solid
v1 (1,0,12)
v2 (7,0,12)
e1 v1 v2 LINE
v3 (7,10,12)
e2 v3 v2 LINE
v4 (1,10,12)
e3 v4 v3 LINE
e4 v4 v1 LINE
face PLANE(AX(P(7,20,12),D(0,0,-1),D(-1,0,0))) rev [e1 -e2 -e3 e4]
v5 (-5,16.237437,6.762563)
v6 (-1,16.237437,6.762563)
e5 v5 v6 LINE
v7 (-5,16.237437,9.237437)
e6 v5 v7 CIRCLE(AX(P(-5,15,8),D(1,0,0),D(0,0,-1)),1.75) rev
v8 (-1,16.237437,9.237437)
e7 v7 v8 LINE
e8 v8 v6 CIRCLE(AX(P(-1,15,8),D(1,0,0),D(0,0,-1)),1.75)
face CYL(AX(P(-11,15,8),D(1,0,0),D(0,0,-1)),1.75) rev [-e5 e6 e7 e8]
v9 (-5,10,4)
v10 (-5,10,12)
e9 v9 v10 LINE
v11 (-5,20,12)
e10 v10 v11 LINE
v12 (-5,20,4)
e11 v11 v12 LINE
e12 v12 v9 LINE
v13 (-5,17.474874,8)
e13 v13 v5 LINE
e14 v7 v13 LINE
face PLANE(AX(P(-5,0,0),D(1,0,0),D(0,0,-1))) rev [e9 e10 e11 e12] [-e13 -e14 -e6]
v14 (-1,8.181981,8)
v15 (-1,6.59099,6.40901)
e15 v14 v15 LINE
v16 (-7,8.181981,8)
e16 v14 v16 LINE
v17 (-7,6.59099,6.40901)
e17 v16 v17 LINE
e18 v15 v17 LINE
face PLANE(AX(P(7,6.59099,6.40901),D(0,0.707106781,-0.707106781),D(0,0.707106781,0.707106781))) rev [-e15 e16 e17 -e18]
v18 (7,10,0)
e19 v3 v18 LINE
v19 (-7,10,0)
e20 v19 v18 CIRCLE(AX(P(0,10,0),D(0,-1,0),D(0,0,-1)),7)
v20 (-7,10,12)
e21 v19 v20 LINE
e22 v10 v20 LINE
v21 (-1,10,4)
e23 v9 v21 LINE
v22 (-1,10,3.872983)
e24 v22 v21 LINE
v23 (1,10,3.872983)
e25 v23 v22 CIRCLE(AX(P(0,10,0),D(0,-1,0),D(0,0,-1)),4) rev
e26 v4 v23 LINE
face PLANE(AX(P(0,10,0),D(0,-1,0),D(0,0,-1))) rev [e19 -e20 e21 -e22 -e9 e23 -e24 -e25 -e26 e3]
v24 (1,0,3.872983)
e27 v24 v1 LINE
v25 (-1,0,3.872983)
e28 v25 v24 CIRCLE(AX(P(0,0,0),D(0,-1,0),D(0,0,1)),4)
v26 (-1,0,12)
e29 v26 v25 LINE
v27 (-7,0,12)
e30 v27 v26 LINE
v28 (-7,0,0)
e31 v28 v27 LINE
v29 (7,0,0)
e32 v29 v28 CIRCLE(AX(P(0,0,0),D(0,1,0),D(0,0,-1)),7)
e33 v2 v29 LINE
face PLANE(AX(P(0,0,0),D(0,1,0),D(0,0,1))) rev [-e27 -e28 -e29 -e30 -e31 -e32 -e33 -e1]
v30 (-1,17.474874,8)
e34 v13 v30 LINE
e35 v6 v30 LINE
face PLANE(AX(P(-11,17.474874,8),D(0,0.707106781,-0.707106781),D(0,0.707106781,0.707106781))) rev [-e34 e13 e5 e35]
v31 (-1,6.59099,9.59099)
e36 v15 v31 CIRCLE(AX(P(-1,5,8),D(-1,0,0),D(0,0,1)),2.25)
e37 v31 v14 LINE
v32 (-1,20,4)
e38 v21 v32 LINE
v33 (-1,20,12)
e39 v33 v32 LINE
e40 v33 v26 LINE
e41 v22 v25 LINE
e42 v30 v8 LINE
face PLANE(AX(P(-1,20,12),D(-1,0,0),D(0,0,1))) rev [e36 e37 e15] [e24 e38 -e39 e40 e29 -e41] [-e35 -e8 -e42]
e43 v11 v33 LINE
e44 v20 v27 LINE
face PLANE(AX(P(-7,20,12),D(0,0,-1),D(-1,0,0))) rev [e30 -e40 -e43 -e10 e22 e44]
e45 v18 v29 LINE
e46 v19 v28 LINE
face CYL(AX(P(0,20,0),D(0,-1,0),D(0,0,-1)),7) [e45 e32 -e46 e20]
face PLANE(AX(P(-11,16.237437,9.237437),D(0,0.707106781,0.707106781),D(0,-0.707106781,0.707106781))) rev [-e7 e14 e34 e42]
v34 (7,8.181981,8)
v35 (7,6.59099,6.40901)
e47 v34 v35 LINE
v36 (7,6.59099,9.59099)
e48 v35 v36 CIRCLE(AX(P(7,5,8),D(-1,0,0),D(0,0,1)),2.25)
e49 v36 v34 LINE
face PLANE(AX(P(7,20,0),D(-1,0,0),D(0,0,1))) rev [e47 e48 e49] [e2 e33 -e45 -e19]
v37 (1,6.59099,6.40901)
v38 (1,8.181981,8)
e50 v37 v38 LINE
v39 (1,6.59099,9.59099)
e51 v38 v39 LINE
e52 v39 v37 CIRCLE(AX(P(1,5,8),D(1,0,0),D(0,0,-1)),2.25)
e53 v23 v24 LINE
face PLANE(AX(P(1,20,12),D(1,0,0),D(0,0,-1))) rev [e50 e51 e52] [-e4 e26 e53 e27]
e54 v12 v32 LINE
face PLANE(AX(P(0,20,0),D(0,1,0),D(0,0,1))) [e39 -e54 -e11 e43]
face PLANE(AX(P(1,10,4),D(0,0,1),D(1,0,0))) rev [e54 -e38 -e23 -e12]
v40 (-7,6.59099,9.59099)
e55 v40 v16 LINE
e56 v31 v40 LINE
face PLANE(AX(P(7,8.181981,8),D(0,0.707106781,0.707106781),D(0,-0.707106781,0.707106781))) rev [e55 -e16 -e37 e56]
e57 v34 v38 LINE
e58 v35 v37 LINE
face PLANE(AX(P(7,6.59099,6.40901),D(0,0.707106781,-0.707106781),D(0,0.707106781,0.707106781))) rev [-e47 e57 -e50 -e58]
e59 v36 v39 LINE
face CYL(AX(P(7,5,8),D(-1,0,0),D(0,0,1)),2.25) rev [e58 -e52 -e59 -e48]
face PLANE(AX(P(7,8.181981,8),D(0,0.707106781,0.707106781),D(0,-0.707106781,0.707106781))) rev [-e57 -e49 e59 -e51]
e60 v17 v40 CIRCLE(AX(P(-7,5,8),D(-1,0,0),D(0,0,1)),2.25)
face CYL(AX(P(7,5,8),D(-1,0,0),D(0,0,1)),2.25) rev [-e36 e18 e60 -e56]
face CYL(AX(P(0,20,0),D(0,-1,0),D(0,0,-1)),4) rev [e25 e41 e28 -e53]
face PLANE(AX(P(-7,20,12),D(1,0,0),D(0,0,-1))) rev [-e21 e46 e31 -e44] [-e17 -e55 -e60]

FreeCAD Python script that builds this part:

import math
import FreeCAD as App
import Part
import Sketcher


def add_polygon(sketch, points):
    """Adds a closed chain of lines whose ends are joined by coincident constraints."""
    first, n = sketch.GeometryCount, len(points)
    for a, b in zip(points, points[1:] + points[:1]):
        sketch.addGeometry(Part.LineSegment(App.Vector(*a, 0), App.Vector(*b, 0)), False)
    for i in range(n):
        sketch.addConstraint(Sketcher.Constraint("Coincident", first + i, 2, first + (i + 1) % n, 1))

doc = App.newDocument("Part")
body = doc.addObject("PartDesign::Body", "Body")

# Sketch on XZ plane
sketch1 = doc.addObject("Sketcher::SketchObject", "Sketch")
body.addObject(sketch1)
sketch1.AttachmentSupport = (doc.XZ_Plane, [""])
sketch1.MapMode = "FlatFace"
sketch1.addGeometry(Part.LineSegment(App.Vector(-7, 0, 0), App.Vector(-7, 12, 0)), False)
sketch1.addGeometry(Part.LineSegment(App.Vector(-7, 12, 0), App.Vector(-1, 12, 0)), False)
sketch1.addGeometry(Part.LineSegment(App.Vector(-1, 12, 0), App.Vector(-1, 3.9, 0)), False)
sketch1.addGeometry(Part.ArcOfCircle(Part.Circle(App.Vector(0, 0, 0), App.Vector(0, 0, 1), 4), math.radians(104), math.radians(436)), False)
sketch1.addGeometry(Part.LineSegment(App.Vector(1, 3.9, 0), App.Vector(1, 12, 0)), False)
sketch1.addGeometry(Part.LineSegment(App.Vector(1, 12, 0), App.Vector(7, 12, 0)), False)
sketch1.addGeometry(Part.LineSegment(App.Vector(7, 12, 0), App.Vector(7, 0, 0)), False)
sketch1.addGeometry(Part.ArcOfCircle(Part.Circle(App.Vector(0, 0, 0), App.Vector(0, 0, 1), 7), math.radians(180), math.radians(360)), False)
sketch1.addConstraint(Sketcher.Constraint("Coincident", 0, 2, 1, 1))
sketch1.addConstraint(Sketcher.Constraint("Coincident", 1, 2, 2, 1))
sketch1.addConstraint(Sketcher.Constraint("Coincident", 2, 2, 3, 1))
sketch1.addConstraint(Sketcher.Constraint("Coincident", 3, 2, 4, 1))
sketch1.addConstraint(Sketcher.Constraint("Coincident", 4, 2, 5, 1))
sketch1.addConstraint(Sketcher.Constraint("Coincident", 5, 2, 6, 1))
sketch1.addConstraint(Sketcher.Constraint("Tangent", 6, 2, 7, 2))
sketch1.addConstraint(Sketcher.Constraint("Tangent", 7, 1, 0, 1))
sketch1.addConstraint(Sketcher.Constraint("Vertical", 0))
sketch1.addConstraint(Sketcher.Constraint("Horizontal", 1))
sketch1.addConstraint(Sketcher.Constraint("Vertical", 2))
sketch1.addConstraint(Sketcher.Constraint("Vertical", 4))
sketch1.addConstraint(Sketcher.Constraint("Horizontal", 5))
sketch1.addConstraint(Sketcher.Constraint("Vertical", 6))
sketch1.addConstraint(Sketcher.Constraint("Coincident", 3, 3, -1, 1))
sketch1.addConstraint(Sketcher.Constraint("Coincident", 7, 3, -1, 1))
sketch1.addConstraint(Sketcher.Constraint("Symmetric", 1, 2, 4, 2, -2))
sketch1.addConstraint(Sketcher.Constraint("Radius", 3, 4.0))
sketch1.addConstraint(Sketcher.Constraint("Radius", 7, 7.0))
sketch1.addConstraint(Sketcher.Constraint("DistanceX", 1, 1, 1, 2, 6.0))
sketch1.addConstraint(Sketcher.Constraint("DistanceY", 0, 1, 0, 2, 12.0))
pad1 = doc.addObject("PartDesign::Pad", "Pad")
body.addObject(pad1)
pad1.Profile = sketch1
pad1.Length = 20
pad1.Reversed = True

# Sketch on YZ plane
sketch2 = doc.addObject("Sketcher::SketchObject", "Sketch001")
body.addObject(sketch2)
sketch2.AttachmentSupport = (doc.YZ_Plane, [""])
sketch2.MapMode = "FlatFace"
sketch2.AttachmentOffset = App.Placement(App.Vector(0, 0, -7), App.Rotation())
sketch2.addGeometry(Part.LineSegment(App.Vector(8.2, 8, 0), App.Vector(6.6, 6.4, 0)), False)
sketch2.addGeometry(Part.ArcOfCircle(Part.Circle(App.Vector(5, 8, 0), App.Vector(0, 0, 1), 2.2), math.radians(45), math.radians(315)), False)
sketch2.addGeometry(Part.LineSegment(App.Vector(6.6, 9.6, 0), App.Vector(8.2, 8, 0)), False)
sketch2.addConstraint(Sketcher.Constraint("Tangent", 0, 2, 1, 2))
sketch2.addConstraint(Sketcher.Constraint("Tangent", 1, 1, 2, 1))
sketch2.addConstraint(Sketcher.Constraint("Coincident", 2, 2, 0, 1))
sketch2.addConstraint(Sketcher.Constraint("Perpendicular", 0, 2))
sketch2.addConstraint(Sketcher.Constraint("Horizontal", 1, 3, 2, 2))
sketch2.addConstraint(Sketcher.Constraint("Radius", 1, 2.25))
sketch2.addConstraint(Sketcher.Constraint("DistanceX", -1, 1, 1, 3, 5.0))
sketch2.addConstraint(Sketcher.Constraint("DistanceY", -1, 1, 1, 3, 8.0))
pocket1 = doc.addObject("PartDesign::Pocket", "Pocket")
body.addObject(pocket1)
pocket1.Profile = sketch2
pocket1.Type = "ThroughAll"
pocket1.Reversed = True

# Sketch on XZ plane
sketch3 = doc.addObject("Sketcher::SketchObject", "Sketch002")
body.addObject(sketch3)
sketch3.AttachmentSupport = (doc.XZ_Plane, [""])
sketch3.MapMode = "FlatFace"
sketch3.AttachmentOffset = App.Placement(App.Vector(0, 0, -20), App.Rotation())
add_polygon(sketch3, [(-7, 4), (1, 4), (1, 12), (7, 12), (7, -7), (-7, -7)])  # lines 0-5
sketch3.addConstraint(Sketcher.Constraint("Horizontal", 0))
sketch3.addConstraint(Sketcher.Constraint("Vertical", 1))
sketch3.addConstraint(Sketcher.Constraint("Horizontal", 2))
sketch3.addConstraint(Sketcher.Constraint("Vertical", 3))
sketch3.addConstraint(Sketcher.Constraint("Horizontal", 4))
sketch3.addConstraint(Sketcher.Constraint("Vertical", 5))
sketch3.addConstraint(Sketcher.Constraint("Equal", 0, 1))
sketch3.addConstraint(Sketcher.Constraint("DistanceX", 0, 1, 0, 2, 8.0))
sketch3.addConstraint(Sketcher.Constraint("DistanceX", 2, 1, 2, 2, 6.0))
sketch3.addConstraint(Sketcher.Constraint("DistanceY", 3, 2, 3, 1, 19.0))
sketch3.addConstraint(Sketcher.Constraint("DistanceX", -1, 1, 0, 2, 1.0))
sketch3.addConstraint(Sketcher.Constraint("DistanceY", -1, 1, 0, 2, 4.0))
pocket2 = doc.addObject("PartDesign::Pocket", "Pocket001")
body.addObject(pocket2)
pocket2.Profile = sketch3
pocket2.Length = 10
pocket2.Reversed = True

# Sketch on YZ plane
sketch4 = doc.addObject("Sketcher::SketchObject", "Sketch003")
body.addObject(sketch4)
sketch4.AttachmentSupport = (doc.YZ_Plane, [""])
sketch4.MapMode = "FlatFace"
sketch4.AttachmentOffset = App.Placement(App.Vector(0, 0, -1), App.Rotation())
sketch4.addGeometry(Part.LineSegment(App.Vector(17.5, 8, 0), App.Vector(16.2, 9.2, 0)), False)
sketch4.addGeometry(Part.ArcOfCircle(Part.Circle(App.Vector(15, 8, 0), App.Vector(0, 0, 1), 1.8), math.radians(45), math.radians(315)), False)
sketch4.addGeometry(Part.LineSegment(App.Vector(16.2, 6.8, 0), App.Vector(17.5, 8, 0)), False)
sketch4.addConstraint(Sketcher.Constraint("Tangent", 0, 2, 1, 1))
sketch4.addConstraint(Sketcher.Constraint("Tangent", 1, 2, 2, 1))
sketch4.addConstraint(Sketcher.Constraint("Coincident", 2, 2, 0, 1))
sketch4.addConstraint(Sketcher.Constraint("Perpendicular", 0, 2))
sketch4.addConstraint(Sketcher.Constraint("Horizontal", 1, 3, 2, 2))
sketch4.addConstraint(Sketcher.Constraint("Radius", 1, 1.75))
sketch4.addConstraint(Sketcher.Constraint("DistanceX", -1, 1, 1, 3, 15.0))
sketch4.addConstraint(Sketcher.Constraint("DistanceY", -1, 1, 1, 3, 8.0))
pocket3 = doc.addObject("PartDesign::Pocket", "Pocket002")
body.addObject(pocket3)
pocket3.Profile = sketch4
pocket3.Length = 10

# Sketch on YZ plane
sketch5 = doc.addObject("Sketcher::SketchObject", "Sketch004")
body.addObject(sketch5)
sketch5.AttachmentSupport = (doc.YZ_Plane, [""])
sketch5.MapMode = "FlatFace"
sketch5.AttachmentOffset = App.Placement(App.Vector(0, 0, -7), App.Rotation())
add_polygon(sketch5, [(20, 4), (10, 4), (10, 12), (20, 12)])  # lines 0-3
sketch5.addConstraint(Sketcher.Constraint("Horizontal", 0))
sketch5.addConstraint(Sketcher.Constraint("Vertical", 1))
sketch5.addConstraint(Sketcher.Constraint("Horizontal", 2))
sketch5.addConstraint(Sketcher.Constraint("Vertical", 3))
sketch5.addConstraint(Sketcher.Constraint("DistanceX", 0, 2, 0, 1, 10.0))
sketch5.addConstraint(Sketcher.Constraint("DistanceY", 1, 1, 1, 2, 8.0))
sketch5.addConstraint(Sketcher.Constraint("DistanceX", -1, 1, 0, 2, 10.0))
sketch5.addConstraint(Sketcher.Constraint("DistanceY", -1, 1, 0, 2, 4.0))
pocket4 = doc.addObject("PartDesign::Pocket", "Pocket003")
body.addObject(pocket4)
pocket4.Profile = sketch5
pocket4.Length = 2
pocket4.Reversed = True

doc.recompute()
